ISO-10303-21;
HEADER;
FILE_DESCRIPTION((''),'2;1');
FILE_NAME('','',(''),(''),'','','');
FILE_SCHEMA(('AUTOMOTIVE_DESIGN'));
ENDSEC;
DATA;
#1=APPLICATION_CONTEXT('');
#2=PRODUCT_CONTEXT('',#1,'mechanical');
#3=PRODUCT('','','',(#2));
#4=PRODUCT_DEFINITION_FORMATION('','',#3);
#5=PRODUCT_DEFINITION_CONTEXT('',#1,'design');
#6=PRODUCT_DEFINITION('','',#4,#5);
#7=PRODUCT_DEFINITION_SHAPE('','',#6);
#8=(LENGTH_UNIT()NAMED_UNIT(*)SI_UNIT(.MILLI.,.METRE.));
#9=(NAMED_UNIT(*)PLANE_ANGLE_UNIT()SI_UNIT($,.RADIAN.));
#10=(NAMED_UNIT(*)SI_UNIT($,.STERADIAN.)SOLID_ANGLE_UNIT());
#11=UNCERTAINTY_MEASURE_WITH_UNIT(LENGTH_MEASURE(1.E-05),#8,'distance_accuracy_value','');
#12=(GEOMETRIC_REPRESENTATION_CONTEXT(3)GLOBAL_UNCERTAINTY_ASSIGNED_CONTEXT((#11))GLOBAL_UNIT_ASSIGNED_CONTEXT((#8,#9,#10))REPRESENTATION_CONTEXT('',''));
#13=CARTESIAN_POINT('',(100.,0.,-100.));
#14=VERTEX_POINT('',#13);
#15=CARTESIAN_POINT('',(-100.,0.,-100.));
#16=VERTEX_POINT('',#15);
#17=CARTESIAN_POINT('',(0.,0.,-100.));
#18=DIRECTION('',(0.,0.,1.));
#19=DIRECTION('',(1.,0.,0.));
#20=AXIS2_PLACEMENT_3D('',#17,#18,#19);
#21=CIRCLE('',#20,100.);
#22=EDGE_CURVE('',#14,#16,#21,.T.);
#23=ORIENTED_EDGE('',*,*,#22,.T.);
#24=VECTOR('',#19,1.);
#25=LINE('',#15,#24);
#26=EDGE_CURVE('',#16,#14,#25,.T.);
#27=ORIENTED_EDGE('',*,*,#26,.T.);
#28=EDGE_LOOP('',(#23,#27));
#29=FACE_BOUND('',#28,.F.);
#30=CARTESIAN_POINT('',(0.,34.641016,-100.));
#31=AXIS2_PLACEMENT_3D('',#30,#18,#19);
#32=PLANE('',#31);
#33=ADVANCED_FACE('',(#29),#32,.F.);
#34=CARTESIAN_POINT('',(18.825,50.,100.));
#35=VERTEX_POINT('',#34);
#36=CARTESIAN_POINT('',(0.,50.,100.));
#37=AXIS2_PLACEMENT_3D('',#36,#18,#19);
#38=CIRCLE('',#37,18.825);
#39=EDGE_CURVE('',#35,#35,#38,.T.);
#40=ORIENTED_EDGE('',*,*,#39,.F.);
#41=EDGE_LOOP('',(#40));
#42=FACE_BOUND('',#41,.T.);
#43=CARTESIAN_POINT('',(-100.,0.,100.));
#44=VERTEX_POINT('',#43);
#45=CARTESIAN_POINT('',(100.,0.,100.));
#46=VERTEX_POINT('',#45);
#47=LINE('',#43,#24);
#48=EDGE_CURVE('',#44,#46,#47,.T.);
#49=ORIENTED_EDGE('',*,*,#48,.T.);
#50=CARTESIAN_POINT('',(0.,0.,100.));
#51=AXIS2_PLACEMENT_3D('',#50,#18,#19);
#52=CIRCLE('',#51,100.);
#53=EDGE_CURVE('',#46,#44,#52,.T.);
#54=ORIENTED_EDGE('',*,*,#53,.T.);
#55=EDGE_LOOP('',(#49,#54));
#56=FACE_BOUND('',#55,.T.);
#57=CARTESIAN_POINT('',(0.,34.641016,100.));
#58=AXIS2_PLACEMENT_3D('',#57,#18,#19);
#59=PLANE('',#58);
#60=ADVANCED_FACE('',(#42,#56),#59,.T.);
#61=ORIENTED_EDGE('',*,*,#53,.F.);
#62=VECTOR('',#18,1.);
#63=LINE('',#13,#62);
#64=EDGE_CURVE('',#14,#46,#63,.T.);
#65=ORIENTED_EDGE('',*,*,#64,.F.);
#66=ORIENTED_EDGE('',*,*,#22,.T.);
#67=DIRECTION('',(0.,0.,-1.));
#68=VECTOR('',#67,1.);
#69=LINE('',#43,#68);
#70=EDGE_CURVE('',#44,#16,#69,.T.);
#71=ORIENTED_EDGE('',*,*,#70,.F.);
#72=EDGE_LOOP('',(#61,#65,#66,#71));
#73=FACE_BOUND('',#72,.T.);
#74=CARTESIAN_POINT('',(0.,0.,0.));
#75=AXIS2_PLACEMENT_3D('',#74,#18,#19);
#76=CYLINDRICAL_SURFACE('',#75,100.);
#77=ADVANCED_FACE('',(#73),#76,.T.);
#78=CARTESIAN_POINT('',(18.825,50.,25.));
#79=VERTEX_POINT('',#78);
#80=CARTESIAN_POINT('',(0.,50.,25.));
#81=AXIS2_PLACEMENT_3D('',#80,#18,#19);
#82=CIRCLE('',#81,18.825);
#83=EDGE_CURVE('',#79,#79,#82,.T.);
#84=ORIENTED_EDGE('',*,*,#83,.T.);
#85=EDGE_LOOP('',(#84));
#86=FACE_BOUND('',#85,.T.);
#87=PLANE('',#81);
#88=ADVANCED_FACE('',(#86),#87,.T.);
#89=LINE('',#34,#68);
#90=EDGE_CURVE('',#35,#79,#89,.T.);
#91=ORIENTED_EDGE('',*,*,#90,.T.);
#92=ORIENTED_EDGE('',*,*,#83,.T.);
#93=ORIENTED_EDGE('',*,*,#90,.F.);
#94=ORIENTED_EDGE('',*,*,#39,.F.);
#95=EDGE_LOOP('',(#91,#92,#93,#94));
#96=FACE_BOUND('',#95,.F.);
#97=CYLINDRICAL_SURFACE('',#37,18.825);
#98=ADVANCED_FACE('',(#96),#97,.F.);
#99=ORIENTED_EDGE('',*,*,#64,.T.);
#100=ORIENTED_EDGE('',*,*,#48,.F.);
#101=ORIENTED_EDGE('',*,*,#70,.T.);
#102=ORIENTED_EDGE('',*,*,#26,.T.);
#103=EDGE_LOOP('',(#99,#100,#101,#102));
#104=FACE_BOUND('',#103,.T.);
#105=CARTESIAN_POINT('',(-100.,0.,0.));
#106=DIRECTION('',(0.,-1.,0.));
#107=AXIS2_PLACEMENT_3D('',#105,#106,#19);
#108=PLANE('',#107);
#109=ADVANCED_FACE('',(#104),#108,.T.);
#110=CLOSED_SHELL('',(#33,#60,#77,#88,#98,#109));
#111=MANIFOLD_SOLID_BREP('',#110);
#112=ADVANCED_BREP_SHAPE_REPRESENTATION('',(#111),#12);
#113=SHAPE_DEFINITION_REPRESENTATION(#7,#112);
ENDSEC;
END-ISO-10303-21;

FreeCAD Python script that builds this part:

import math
import FreeCAD as App
import Part
import Sketcher
from FreeCAD import Vector

doc = App.newDocument("Part")
body = doc.addObject("PartDesign::Body", "Body")

# Sketch on XY plane
sketch1 = body.newObject("Sketcher::SketchObject", "Sketch")
sketch1.AttachmentSupport = (doc.getObject("XY_Plane"), [""])
sketch1.MapMode = "FlatFace"
sketch1.addGeometry([
    Part.LineSegment(Vector(-100, 0, 0), Vector(100, 0, 0)),
    Part.ArcOfCircle(Part.Circle(Vector(0, 0, 0), Vector(0, 0, 1), 100), math.radians(0), math.radians(180)),
], False)
sketch1.addConstraint([
    Sketcher.Constraint("Coincident", 0, 1, 1, 2),
    Sketcher.Constraint("Coincident", 1, 1, 0, 2),
    Sketcher.Constraint("Horizontal", 0),
    Sketcher.Constraint("Coincident", 1, 3, -1, 1),
    Sketcher.Constraint("PointOnObject", 0, 1, -1),
    Sketcher.Constraint("Radius", 1, 100.0),
])
pad1 = body.newObject("PartDesign::Pad", "Pad")
pad1.Profile = sketch1
pad1.Length = 200
pad1.Midplane = True

# Sketch on XY plane
sketch2 = body.newObject("Sketcher::SketchObject", "Sketch001")
sketch2.AttachmentSupport = (doc.getObject("XY_Plane"), [""])
sketch2.MapMode = "FlatFace"
sketch2.AttachmentOffset = App.Placement(Vector(0, 0, 100), App.Rotation())
sketch2.addGeometry(Part.Circle(Vector(0, 50, 0), Vector(0, 0, 1), 19), False)
sketch2.addConstraint([
    Sketcher.Constraint("PointOnObject", 0, 3, -2),
    Sketcher.Constraint("Diameter", 0, 37.65),
    Sketcher.Constraint("DistanceY", -1, 1, 0, 3, 50.0),
])
pocket1 = body.newObject("PartDesign::Pocket", "Pocket")
pocket1.Profile = sketch2
pocket1.Length = 75

doc.recompute()
